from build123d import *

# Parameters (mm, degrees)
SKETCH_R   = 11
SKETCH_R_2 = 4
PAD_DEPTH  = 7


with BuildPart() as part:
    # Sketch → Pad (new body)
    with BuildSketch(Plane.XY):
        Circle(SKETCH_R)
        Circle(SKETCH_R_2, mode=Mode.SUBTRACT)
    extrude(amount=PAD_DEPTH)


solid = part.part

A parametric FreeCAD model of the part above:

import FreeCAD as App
import Part
import Sketcher

V = App.Vector

doc = App.newDocument("Part")
params = doc.addObject("Spreadsheet::Sheet", "Params")
for row, (alias, value) in enumerate([
    ("sketch1_diameter", "22 mm"),
    ("sketch1_diameter2", "8 mm"),
    ("pad1_length", "7 mm"),
], start=1):
    params.set(f"A{row}", alias)
    params.set(f"B{row}", "=" + value)
    params.setAlias(f"B{row}", alias)

body = doc.addObject("PartDesign::Body", "Body")

# Sketch on XY plane
sketch1 = body.newObject("Sketcher::SketchObject", "Sketch")
sketch1.AttachmentSupport = (doc.getObject("XY_Plane"), [""])
sketch1.MapMode = "FlatFace"
sketch1.addGeometry(Part.Circle(V(0, 0, 0), V(0, 0, 1), 11), False)
sketch1.addGeometry(Part.Circle(V(0, 0, 0), V(0, 0, 1), 4), False)
sketch1.addConstraint(Sketcher.Constraint("Coincident", 0, 3, -1, 1))
sketch1.addConstraint(Sketcher.Constraint("Coincident", 1, 3, -1, 1))
sketch1.addConstraint(Sketcher.Constraint("Diameter", 0, 22.0))
sketch1.addConstraint(Sketcher.Constraint("Diameter", 1, 8.0))
sketch1.setExpression("Constraints[2]", "Params.sketch1_diameter")
sketch1.setExpression("Constraints[3]", "Params.sketch1_diameter2")
pad1 = body.newObject("PartDesign::Pad", "Pad")
pad1.Profile = sketch1
pad1.setExpression("Length", "Params.pad1_length")

doc.recompute()
